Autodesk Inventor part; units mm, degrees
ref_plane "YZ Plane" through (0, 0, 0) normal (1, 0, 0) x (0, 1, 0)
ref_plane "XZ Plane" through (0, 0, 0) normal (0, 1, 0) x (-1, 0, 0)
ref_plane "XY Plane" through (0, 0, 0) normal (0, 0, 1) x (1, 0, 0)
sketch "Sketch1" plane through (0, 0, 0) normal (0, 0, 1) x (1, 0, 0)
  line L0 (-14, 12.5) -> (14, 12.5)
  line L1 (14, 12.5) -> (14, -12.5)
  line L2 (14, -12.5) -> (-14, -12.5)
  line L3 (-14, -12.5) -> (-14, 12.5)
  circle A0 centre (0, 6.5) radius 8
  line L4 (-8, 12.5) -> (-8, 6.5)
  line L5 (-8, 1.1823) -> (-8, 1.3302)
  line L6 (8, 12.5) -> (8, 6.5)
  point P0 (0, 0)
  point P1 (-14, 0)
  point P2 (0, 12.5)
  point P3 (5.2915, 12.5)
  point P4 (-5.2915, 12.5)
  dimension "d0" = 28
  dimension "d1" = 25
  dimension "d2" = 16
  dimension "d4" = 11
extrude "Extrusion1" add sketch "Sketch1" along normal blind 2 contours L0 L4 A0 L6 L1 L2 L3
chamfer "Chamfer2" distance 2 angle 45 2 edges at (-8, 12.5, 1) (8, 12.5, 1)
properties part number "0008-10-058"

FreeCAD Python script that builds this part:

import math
import FreeCAD as App
import Part
import Sketcher

V = App.Vector
Q = App.Units.Quantity


def edges_at(feature, points):
    """Names of the edges that pass closest to the given points."""
    edges = feature.Shape.Edges
    near = lambda p: min(range(len(edges)), key=lambda i: edges[i].distToShape(Part.Vertex(*p))[0])
    return sorted({f"Edge{near(p) + 1}" for p in points})

doc = App.newDocument("Part")
body = doc.addObject("PartDesign::Body", "Body")

# Sketch on XY plane
sketch1 = body.newObject("Sketcher::SketchObject", "Sketch")
sketch1.AttachmentSupport = (doc.getObject("XY_Plane"), [""])
sketch1.MapMode = "FlatFace"
sketch1.addGeometry([
    Part.LineSegment(V(-8, 12, 0), V(-14, 12, 0)),  # 0
    Part.LineSegment(V(-14, 12, 0), V(-14, -12, 0)),  # 1
    Part.LineSegment(V(-14, -12, 0), V(14, -12, 0)),  # 2
    Part.LineSegment(V(14, -12, 0), V(14, 12, 0)),  # 3
    Part.LineSegment(V(14, 12, 0), V(8, 12, 0)),  # 4
    Part.LineSegment(V(8, 12, 0), V(8, 6, 0)),  # 5
    Part.ArcOfCircle(Part.Circle(V(0, 6, 0), V(0, 0, 1), 8), math.radians(180), math.radians(360)),  # 6
    Part.LineSegment(V(-8, 6, 0), V(-8, 12, 0)),  # 7
], False)
sketch1.addConstraint([
    Sketcher.Constraint("Coincident", 0, 2, 1, 1),
    Sketcher.Constraint("Coincident", 1, 2, 2, 1),
    Sketcher.Constraint("Coincident", 2, 2, 3, 1),
    Sketcher.Constraint("Coincident", 3, 2, 4, 1),
    Sketcher.Constraint("Coincident", 4, 2, 5, 1),
    Sketcher.Constraint("Tangent", 5, 2, 6, 2),
    Sketcher.Constraint("Tangent", 6, 1, 7, 1),
    Sketcher.Constraint("Coincident", 7, 2, 0, 1),
    Sketcher.Constraint("Horizontal", 0),
    Sketcher.Constraint("Vertical", 1),
    Sketcher.Constraint("Horizontal", 2),
    Sketcher.Constraint("Vertical", 3),
    Sketcher.Constraint("Horizontal", 4),
    Sketcher.Constraint("Vertical", 5),
    Sketcher.Constraint("Vertical", 7),
    Sketcher.Constraint("Symmetric", 0, 2, 2, 2, -1, 1),
    Sketcher.Constraint("Symmetric", 4, 2, 7, 2, -2),
    Sketcher.Constraint("Equal", 4, 5),
    Sketcher.Constraint("Radius", 6, Q("8 mm")),
    Sketcher.Constraint("DistanceX", 2, 1, 2, 2, Q("28 mm")),
    Sketcher.Constraint("DistanceY", 1, 2, 1, 1, Q("25 mm")),
])
pad1 = body.newObject("PartDesign::Pad", "Pad")
pad1.Profile = sketch1
pad1.Length = 2
doc.recompute()

chamfer = body.newObject("PartDesign::Chamfer", "Chamfer")
chamfer.Base = (pad1, edges_at(pad1, [(-8, 12.5, 1), (8, 12.5, 1)]))
chamfer.Size = 2

doc.recompute()
